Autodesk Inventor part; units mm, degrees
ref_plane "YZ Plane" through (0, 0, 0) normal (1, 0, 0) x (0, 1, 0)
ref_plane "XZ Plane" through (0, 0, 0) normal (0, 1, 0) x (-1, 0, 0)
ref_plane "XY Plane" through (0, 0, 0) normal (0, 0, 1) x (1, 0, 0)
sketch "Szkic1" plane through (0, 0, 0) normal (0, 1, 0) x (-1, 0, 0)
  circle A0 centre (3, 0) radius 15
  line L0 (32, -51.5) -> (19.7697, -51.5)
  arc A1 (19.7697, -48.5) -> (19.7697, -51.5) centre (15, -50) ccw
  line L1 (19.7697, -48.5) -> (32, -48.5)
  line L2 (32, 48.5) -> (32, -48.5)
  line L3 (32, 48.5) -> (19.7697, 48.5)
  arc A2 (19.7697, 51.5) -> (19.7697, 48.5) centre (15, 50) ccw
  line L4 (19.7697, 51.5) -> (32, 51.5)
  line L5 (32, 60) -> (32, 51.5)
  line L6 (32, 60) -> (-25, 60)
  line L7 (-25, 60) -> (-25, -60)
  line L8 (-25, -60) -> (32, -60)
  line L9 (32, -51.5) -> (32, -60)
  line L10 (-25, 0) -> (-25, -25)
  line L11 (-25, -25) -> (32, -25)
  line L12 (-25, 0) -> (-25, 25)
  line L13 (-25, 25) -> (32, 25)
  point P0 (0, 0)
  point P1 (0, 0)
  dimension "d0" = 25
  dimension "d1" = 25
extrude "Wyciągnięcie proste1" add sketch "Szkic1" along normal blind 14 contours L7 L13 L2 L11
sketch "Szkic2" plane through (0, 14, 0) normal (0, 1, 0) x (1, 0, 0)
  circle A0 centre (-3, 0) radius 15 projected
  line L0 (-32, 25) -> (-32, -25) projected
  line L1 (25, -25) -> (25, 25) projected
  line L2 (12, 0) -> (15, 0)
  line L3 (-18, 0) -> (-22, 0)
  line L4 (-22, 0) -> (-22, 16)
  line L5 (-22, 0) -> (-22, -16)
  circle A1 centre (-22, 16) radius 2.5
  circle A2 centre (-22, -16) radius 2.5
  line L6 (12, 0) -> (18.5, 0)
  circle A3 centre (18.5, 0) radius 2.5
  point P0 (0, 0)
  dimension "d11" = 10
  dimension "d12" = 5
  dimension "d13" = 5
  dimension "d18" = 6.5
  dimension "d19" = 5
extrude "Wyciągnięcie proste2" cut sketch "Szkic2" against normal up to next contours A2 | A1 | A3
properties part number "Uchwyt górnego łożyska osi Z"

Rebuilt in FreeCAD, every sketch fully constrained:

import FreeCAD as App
import Part
import Sketcher
from FreeCAD import Vector

doc = App.newDocument("Part")
body = doc.addObject("PartDesign::Body", "Body")

sketch1 = doc.addObject("Sketcher::SketchObject", "Sketch")
body.addObject(sketch1)
sketch1.AttachmentSupport = (doc.XZ_Plane, [""])
sketch1.MapMode = "FlatFace"
sketch1.addGeometry([
    Part.LineSegment(Vector(25, 25, 0), Vector(25, -25, 0)),
    Part.LineSegment(Vector(25, -25, 0), Vector(-32, -25, 0)),
    Part.LineSegment(Vector(-32, -25, 0), Vector(-32, 25, 0)),
    Part.LineSegment(Vector(-32, 25, 0), Vector(25, 25, 0)),
    Part.Circle(Vector(-3, 0, 0), Vector(0, 0, 1), 15),
], False)
sketch1.addConstraint([
    Sketcher.Constraint("Coincident", 0, 2, 1, 1),
    Sketcher.Constraint("Coincident", 1, 2, 2, 1),
    Sketcher.Constraint("Coincident", 2, 2, 3, 1),
    Sketcher.Constraint("Coincident", 3, 2, 0, 1),
    Sketcher.Constraint("Vertical", 0),
    Sketcher.Constraint("Horizontal", 1),
    Sketcher.Constraint("Vertical", 2),
    Sketcher.Constraint("Horizontal", 3),
    Sketcher.Constraint("PointOnObject", 4, 3, -1),
    Sketcher.Constraint("Diameter", 4, 30.0),
    Sketcher.Constraint("DistanceX", -1, 1, 0, 2, 25.0),
    Sketcher.Constraint("DistanceY", 0, 2, -1, 1, 25.0),
    Sketcher.Constraint("DistanceY", -1, 1, 2, 2, 25.0),
    Sketcher.Constraint("DistanceX", 1, 2, 1, 1, 57.0),
    Sketcher.Constraint("DistanceX", 4, 3, -1, 1, 3.0),
])
pad1 = doc.addObject("PartDesign::Pad", "Pad")
body.addObject(pad1)
pad1.Profile = sketch1
pad1.Length = 14
pad1.Reversed = True

sketch2 = doc.addObject("Sketcher::SketchObject", "Sketch001")
body.addObject(sketch2)
sketch2.AttachmentSupport = (doc.XZ_Plane, [""])
sketch2.MapMode = "FlatFace"
sketch2.AttachmentOffset = App.Placement(Vector(0, 0, -14), App.Rotation())
sketch2.addGeometry([
    Part.Circle(Vector(-22, 16, 0), Vector(0, 0, 1), 2.5),
    Part.Circle(Vector(-22, -16, 0), Vector(0, 0, 1), 2.5),
    Part.Circle(Vector(18.5, 0, 0), Vector(0, 0, 1), 2.5),
], False)
sketch2.addConstraint([
    Sketcher.Constraint("Equal", 0, 1),
    Sketcher.Constraint("Equal", 1, 2),
    Sketcher.Constraint("Symmetric", 0, 3, 1, 3, -1),
    Sketcher.Constraint("PointOnObject", 2, 3, -1),
    Sketcher.Constraint("Diameter", 0, 5.0),
    Sketcher.Constraint("DistanceX", 0, 3, -1, 1, 22.0),
    Sketcher.Constraint("DistanceY", -1, 1, 0, 3, 16.0),
    Sketcher.Constraint("DistanceX", -1, 1, 2, 3, 18.5),
])
pocket1 = doc.addObject("PartDesign::Pocket", "Pocket")
body.addObject(pocket1)
pocket1.Profile = sketch2
pocket1.Length = 14
pocket1.Reversed = True

doc.recompute()
